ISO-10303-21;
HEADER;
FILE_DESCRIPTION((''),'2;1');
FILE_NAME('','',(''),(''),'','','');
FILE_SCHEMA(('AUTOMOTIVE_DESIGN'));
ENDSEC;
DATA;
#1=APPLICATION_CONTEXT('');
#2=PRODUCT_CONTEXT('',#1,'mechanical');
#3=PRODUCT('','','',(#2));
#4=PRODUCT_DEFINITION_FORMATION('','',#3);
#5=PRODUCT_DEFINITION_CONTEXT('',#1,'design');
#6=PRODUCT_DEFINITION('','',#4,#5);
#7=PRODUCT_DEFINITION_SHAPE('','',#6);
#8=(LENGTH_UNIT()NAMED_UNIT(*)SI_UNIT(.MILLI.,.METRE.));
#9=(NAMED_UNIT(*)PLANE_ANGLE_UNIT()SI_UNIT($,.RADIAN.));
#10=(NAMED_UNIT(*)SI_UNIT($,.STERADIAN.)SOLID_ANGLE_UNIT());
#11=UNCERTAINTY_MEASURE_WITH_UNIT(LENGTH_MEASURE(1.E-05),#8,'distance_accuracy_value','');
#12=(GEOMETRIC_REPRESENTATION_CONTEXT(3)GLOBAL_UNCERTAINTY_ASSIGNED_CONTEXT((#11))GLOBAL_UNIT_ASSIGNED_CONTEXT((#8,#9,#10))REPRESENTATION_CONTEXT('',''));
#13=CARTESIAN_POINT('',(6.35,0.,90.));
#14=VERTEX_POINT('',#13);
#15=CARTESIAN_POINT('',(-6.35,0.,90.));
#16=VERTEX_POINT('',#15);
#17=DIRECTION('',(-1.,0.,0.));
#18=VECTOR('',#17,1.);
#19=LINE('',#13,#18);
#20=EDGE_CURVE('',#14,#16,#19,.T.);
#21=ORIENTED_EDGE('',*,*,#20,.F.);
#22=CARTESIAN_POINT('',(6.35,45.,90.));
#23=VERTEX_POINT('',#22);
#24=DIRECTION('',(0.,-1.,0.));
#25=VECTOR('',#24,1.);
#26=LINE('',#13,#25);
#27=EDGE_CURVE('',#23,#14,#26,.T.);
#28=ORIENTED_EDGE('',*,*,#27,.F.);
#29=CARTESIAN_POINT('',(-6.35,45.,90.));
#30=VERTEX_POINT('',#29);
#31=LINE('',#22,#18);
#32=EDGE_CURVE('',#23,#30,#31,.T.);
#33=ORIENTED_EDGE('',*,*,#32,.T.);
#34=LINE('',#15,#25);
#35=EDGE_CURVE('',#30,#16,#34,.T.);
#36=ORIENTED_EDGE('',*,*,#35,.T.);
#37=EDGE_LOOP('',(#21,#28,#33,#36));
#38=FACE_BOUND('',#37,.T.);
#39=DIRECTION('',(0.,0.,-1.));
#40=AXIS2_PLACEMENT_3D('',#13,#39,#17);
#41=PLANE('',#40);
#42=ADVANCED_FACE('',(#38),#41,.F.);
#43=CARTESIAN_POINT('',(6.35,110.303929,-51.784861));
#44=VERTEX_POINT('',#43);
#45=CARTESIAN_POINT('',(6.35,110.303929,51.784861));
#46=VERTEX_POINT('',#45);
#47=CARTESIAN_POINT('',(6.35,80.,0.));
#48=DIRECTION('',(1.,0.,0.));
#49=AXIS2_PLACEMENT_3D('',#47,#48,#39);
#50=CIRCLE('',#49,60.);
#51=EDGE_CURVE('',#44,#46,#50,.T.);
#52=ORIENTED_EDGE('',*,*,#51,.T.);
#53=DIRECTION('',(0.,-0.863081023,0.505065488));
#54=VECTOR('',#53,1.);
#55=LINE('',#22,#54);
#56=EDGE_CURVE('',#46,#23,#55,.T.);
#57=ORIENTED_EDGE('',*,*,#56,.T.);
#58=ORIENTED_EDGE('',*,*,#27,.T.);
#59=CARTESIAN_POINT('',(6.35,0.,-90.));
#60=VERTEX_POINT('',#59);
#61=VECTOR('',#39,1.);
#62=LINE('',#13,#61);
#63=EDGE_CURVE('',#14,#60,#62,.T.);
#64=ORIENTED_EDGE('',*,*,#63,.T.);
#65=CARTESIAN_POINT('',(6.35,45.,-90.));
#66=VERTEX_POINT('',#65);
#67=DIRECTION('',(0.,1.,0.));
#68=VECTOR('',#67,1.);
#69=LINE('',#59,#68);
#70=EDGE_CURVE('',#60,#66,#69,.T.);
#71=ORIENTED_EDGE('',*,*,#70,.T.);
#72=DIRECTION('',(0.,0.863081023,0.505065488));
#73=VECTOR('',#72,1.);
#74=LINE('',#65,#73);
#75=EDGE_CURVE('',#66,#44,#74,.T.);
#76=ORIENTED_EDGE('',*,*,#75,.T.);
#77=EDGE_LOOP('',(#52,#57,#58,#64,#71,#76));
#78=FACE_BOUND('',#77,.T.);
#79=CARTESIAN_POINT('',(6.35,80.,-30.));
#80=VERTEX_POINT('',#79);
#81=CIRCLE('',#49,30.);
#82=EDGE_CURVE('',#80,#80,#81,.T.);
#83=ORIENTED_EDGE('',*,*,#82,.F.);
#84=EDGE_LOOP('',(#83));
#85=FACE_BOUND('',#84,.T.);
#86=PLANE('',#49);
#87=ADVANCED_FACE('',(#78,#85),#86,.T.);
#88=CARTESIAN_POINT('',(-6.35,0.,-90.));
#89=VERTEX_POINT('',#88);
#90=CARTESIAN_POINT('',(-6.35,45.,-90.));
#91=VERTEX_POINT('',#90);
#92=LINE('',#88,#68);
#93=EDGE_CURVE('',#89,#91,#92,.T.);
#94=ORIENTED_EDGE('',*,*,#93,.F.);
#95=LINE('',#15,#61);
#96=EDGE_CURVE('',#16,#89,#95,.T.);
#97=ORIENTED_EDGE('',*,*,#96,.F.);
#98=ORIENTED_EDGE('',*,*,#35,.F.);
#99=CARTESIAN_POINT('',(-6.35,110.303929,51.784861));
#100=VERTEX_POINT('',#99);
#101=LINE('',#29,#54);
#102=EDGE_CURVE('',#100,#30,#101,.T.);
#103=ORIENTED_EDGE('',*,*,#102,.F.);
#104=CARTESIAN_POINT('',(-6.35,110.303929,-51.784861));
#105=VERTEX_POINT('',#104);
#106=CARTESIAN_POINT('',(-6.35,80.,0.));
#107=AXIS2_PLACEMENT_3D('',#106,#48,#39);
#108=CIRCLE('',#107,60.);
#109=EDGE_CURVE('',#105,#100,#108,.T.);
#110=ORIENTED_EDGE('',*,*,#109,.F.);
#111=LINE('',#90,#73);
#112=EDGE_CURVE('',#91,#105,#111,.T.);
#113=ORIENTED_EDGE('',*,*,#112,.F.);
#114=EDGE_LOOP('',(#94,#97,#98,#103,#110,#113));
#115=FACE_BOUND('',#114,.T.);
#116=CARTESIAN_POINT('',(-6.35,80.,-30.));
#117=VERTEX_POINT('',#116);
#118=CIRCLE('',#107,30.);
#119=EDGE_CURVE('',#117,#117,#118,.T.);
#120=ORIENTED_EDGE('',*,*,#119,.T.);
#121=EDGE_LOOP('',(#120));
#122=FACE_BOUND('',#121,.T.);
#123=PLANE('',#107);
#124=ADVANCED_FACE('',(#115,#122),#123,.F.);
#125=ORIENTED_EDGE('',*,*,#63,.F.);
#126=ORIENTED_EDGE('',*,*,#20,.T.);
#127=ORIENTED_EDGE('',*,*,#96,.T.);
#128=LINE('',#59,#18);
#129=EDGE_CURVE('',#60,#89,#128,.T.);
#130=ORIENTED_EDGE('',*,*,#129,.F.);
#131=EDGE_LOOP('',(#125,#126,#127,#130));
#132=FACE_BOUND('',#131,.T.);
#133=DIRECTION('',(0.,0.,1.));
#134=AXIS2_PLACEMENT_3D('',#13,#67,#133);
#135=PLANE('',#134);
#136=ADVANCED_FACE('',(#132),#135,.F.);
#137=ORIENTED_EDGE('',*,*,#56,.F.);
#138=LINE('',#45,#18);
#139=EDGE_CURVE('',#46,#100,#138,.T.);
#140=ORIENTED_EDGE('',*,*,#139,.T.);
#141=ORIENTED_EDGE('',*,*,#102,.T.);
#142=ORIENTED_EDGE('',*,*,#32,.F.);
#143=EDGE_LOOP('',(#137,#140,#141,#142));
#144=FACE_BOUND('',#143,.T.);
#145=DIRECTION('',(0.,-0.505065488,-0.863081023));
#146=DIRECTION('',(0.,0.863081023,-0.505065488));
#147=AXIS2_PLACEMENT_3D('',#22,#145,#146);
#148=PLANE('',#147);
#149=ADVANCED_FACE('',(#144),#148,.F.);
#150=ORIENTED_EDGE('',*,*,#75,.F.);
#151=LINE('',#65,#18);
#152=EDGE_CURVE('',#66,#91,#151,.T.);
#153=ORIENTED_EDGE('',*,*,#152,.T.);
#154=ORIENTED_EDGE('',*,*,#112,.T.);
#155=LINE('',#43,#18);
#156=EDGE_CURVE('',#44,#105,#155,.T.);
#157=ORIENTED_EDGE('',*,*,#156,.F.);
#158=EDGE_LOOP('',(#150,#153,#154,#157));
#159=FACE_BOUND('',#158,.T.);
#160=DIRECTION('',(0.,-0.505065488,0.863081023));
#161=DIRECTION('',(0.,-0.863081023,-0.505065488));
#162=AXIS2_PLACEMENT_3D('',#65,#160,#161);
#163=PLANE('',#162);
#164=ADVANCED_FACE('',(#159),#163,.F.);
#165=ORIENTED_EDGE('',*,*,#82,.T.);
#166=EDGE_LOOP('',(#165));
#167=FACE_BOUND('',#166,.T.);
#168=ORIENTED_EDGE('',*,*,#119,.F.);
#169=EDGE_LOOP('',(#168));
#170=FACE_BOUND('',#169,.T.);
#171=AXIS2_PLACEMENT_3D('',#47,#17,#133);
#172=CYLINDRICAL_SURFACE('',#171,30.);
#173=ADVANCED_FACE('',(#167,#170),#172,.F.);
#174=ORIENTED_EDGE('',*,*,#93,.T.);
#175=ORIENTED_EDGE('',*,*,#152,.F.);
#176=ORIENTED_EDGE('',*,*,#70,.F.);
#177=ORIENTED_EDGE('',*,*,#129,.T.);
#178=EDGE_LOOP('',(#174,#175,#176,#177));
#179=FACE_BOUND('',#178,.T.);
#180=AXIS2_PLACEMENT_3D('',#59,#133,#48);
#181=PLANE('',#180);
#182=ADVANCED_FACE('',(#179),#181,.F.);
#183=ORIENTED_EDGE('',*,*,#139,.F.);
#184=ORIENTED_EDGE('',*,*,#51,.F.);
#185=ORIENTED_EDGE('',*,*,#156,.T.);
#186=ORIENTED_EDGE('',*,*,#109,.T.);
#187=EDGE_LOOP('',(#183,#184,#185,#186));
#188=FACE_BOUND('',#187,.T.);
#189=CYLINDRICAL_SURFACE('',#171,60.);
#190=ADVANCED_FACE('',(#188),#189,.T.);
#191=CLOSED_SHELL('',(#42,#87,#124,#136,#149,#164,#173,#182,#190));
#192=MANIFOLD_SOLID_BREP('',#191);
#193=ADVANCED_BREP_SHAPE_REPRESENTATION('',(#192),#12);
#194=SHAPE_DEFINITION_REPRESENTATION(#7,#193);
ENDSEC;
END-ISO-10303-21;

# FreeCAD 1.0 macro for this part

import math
import FreeCAD as App
import Part
import Sketcher

doc = App.newDocument("Part")
body = doc.addObject("PartDesign::Body", "Body")

sketch1 = body.newObject("Sketcher::SketchObject", "Sketch")
sketch1.AttachmentSupport = (doc.getObject("YZ_Plane"), [""])
sketch1.MapMode = "FlatFace"
sketch1.addGeometry(Part.LineSegment(App.Vector(0, -90, 0), App.Vector(45, -90, 0)), False)
sketch1.addGeometry(Part.LineSegment(App.Vector(45, -90, 0), App.Vector(110, -52, 0)), False)
sketch1.addGeometry(Part.ArcOfCircle(Part.Circle(App.Vector(80, 0, 0), App.Vector(0, 0, 1), 60), math.radians(-60), math.radians(60)), False)
sketch1.addGeometry(Part.LineSegment(App.Vector(110, 52, 0), App.Vector(45, 90, 0)), False)
sketch1.addGeometry(Part.LineSegment(App.Vector(45, 90, 0), App.Vector(0, 90, 0)), False)
sketch1.addGeometry(Part.LineSegment(App.Vector(0, 90, 0), App.Vector(0, -90, 0)), False)
sketch1.addGeometry(Part.Circle(App.Vector(80, 0, 0), App.Vector(0, 0, 1), 30), False)
sketch1.addConstraint(Sketcher.Constraint("Coincident", 0, 2, 1, 1))
sketch1.addConstraint(Sketcher.Constraint("Tangent", 1, 2, 2, 1))
sketch1.addConstraint(Sketcher.Constraint("Tangent", 2, 2, 3, 1))
sketch1.addConstraint(Sketcher.Constraint("Coincident", 3, 2, 4, 1))
sketch1.addConstraint(Sketcher.Constraint("Coincident", 4, 2, 5, 1))
sketch1.addConstraint(Sketcher.Constraint("Coincident", 5, 2, 0, 1))
sketch1.addConstraint(Sketcher.Constraint("Horizontal", 0))
sketch1.addConstraint(Sketcher.Constraint("Horizontal", 4))
sketch1.addConstraint(Sketcher.Constraint("Vertical", 5))
sketch1.addConstraint(Sketcher.Constraint("Coincident", 6, 3, 2, 3))
sketch1.addConstraint(Sketcher.Constraint("Symmetric", 4, 2, 5, 2, -1, 1))
sketch1.addConstraint(Sketcher.Constraint("Symmetric", 1, 2, 2, 2, -1))
sketch1.addConstraint(Sketcher.Constraint("Diameter", 6, 60.0))
sketch1.addConstraint(Sketcher.Constraint("Radius", 2, 60.0))
sketch1.addConstraint(Sketcher.Constraint("DistanceX", 0, 1, 0, 2, 45.0))
sketch1.addConstraint(Sketcher.Constraint("DistanceY", 5, 2, 5, 1, 180.0))
sketch1.addConstraint(Sketcher.Constraint("DistanceX", -1, 1, 2, 3, 80.0))
pad1 = body.newObject("PartDesign::Pad", "Pad")
pad1.Profile = sketch1
pad1.Length = 12.7
pad1.Midplane = True

doc.recompute()
